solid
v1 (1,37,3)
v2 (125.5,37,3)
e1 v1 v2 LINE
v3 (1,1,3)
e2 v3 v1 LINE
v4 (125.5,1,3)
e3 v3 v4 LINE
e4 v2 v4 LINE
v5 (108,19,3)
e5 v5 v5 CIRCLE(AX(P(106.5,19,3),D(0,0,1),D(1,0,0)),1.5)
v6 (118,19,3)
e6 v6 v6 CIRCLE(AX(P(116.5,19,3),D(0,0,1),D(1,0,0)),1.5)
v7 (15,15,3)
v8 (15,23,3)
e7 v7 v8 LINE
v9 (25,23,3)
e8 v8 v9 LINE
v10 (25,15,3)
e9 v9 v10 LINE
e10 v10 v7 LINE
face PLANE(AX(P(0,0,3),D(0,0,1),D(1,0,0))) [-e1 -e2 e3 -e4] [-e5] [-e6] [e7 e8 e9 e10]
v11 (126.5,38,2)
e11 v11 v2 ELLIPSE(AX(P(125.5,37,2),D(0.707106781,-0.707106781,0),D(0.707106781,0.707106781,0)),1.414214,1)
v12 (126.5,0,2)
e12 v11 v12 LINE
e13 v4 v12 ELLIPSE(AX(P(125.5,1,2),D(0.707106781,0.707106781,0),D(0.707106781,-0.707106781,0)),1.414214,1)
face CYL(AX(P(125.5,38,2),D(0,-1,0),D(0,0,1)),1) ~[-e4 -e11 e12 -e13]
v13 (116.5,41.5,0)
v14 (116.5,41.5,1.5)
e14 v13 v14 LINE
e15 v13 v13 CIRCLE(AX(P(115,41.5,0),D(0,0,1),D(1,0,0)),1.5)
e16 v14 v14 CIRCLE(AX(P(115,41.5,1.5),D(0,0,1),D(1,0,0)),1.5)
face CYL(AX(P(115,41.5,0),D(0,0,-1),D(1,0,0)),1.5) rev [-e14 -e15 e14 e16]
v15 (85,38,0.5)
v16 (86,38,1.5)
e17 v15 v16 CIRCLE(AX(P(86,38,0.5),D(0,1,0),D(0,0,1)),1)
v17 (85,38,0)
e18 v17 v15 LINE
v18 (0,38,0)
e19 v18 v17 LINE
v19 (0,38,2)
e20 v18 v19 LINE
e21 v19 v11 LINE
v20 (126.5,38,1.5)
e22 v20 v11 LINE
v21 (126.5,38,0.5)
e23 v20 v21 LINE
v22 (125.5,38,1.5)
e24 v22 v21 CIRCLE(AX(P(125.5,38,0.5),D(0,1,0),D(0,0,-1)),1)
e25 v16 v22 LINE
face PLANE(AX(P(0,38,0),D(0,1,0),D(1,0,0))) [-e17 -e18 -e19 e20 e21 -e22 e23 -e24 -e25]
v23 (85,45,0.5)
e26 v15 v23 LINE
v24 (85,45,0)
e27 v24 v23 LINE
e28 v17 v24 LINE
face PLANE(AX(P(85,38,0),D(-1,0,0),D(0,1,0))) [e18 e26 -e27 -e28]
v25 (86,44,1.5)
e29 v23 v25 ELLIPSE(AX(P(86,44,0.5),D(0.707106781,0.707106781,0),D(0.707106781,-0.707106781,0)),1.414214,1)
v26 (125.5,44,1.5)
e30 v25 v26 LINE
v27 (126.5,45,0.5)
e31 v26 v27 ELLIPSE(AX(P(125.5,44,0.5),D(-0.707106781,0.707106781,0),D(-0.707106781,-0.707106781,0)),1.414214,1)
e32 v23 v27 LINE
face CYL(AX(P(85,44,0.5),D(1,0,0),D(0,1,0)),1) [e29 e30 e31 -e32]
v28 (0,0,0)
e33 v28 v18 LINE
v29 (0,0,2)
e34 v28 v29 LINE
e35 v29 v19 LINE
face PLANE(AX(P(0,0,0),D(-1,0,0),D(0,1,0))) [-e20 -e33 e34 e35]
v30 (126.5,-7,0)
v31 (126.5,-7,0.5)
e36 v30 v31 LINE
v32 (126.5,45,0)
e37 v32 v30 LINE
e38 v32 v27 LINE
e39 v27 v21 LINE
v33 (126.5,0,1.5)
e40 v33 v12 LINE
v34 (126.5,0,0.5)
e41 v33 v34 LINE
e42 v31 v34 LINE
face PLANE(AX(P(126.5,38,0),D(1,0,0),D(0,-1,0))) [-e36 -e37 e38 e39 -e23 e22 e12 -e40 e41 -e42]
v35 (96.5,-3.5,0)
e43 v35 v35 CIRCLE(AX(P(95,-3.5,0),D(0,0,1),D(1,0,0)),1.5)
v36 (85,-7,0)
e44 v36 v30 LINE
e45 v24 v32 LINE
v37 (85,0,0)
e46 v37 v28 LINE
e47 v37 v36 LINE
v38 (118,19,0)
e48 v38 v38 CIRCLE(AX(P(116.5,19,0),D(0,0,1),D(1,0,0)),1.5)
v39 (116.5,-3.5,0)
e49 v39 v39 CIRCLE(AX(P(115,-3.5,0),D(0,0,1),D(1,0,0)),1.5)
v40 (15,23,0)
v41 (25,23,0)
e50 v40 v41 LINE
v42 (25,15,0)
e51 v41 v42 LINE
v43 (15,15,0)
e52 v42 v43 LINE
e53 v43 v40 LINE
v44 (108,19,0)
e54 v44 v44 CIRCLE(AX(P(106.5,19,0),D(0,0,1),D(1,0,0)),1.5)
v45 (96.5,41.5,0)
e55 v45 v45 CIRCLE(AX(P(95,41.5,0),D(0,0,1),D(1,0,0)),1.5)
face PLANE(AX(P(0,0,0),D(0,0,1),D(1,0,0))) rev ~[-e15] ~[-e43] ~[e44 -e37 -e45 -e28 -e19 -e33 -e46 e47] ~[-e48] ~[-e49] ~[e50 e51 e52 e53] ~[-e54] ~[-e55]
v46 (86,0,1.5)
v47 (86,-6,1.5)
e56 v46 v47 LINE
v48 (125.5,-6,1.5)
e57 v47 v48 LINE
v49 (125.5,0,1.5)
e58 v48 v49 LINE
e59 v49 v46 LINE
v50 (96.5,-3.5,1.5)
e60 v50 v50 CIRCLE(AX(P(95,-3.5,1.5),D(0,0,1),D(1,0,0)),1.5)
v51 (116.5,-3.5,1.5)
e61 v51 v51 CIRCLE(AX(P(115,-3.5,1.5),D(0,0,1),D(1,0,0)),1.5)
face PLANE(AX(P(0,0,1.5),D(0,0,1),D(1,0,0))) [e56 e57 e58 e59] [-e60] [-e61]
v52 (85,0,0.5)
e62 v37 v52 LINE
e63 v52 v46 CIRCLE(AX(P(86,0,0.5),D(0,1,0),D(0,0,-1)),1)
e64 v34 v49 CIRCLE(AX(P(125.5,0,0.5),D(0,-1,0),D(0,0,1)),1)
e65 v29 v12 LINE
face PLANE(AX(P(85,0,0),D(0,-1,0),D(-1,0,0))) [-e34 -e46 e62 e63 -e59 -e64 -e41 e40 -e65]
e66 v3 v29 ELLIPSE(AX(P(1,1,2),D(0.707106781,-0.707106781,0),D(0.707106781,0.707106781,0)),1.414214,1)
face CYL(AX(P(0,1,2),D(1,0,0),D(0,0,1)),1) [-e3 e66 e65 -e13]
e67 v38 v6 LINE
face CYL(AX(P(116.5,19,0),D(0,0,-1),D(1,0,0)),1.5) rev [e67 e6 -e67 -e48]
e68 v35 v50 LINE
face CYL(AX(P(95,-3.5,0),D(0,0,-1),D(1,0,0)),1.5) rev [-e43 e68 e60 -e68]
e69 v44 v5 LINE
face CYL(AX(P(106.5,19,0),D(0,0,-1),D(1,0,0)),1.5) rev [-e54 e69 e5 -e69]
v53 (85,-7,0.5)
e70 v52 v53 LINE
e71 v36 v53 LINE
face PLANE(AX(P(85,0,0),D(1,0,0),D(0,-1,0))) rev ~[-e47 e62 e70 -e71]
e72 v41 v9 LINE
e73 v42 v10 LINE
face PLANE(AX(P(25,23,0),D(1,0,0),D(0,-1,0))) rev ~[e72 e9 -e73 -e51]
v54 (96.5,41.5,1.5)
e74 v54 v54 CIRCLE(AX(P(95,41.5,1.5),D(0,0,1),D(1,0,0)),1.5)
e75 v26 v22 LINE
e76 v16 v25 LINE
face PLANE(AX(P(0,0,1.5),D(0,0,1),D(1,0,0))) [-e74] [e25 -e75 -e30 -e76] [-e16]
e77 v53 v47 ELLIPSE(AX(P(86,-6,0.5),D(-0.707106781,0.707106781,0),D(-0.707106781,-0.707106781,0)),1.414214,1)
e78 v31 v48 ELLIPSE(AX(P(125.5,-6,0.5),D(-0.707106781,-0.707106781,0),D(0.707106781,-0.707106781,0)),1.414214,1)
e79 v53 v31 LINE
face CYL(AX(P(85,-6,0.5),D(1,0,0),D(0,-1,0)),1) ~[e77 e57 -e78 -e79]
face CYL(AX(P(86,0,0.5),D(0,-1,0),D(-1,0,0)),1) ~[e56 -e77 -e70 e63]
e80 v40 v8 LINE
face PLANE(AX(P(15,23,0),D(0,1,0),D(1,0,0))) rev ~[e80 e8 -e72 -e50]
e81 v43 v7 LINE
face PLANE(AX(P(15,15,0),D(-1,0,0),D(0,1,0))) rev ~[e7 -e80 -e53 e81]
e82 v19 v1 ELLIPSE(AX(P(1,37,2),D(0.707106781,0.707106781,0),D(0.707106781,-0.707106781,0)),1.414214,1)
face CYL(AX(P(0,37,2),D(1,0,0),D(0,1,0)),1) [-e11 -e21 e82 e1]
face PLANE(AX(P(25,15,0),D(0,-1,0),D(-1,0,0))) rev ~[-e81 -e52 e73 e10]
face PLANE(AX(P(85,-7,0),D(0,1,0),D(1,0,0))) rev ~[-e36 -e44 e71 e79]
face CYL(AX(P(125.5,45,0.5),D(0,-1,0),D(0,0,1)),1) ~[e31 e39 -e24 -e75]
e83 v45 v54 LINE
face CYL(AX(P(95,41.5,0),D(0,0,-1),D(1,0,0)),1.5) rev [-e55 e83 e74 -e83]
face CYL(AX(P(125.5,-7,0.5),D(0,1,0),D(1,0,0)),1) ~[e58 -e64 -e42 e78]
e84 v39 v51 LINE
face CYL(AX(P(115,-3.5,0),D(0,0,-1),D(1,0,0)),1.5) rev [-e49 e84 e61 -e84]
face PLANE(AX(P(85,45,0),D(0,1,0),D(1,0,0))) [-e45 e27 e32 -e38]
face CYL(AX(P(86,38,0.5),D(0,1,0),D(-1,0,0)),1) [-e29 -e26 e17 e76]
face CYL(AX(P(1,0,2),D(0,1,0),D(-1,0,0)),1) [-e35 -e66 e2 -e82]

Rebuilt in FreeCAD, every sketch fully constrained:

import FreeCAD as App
import Part
import Sketcher

V = App.Vector
Q = App.Units.Quantity


def edges_at(feature, points):
    """Names of the edges that pass closest to the given points."""
    edges = feature.Shape.Edges
    near = lambda p: min(range(len(edges)), key=lambda i: edges[i].distToShape(Part.Vertex(*p))[0])
    return sorted({f"Edge{near(p) + 1}" for p in points})

doc = App.newDocument("Part")
body = doc.addObject("PartDesign::Body", "Body")

# Sketch on XY plane
sketch1 = body.newObject("Sketcher::SketchObject", "Sketch")
sketch1.AttachmentSupport = (doc.getObject("XY_Plane"), [""])
sketch1.MapMode = "FlatFace"
sketch1.addGeometry([
    Part.LineSegment(V(126.5, 38, 0), V(0, 38, 0)),  # 0
    Part.LineSegment(V(0, 38, 0), V(0, 0, 0)),  # 1
    Part.LineSegment(V(0, 0, 0), V(126.5, 0, 0)),  # 2
    Part.LineSegment(V(126.5, 0, 0), V(126.5, 38, 0)),  # 3
    Part.LineSegment(V(15, 15, 0), V(15, 23, 0)),  # 4
    Part.LineSegment(V(15, 23, 0), V(25, 23, 0)),  # 5
    Part.LineSegment(V(25, 23, 0), V(25, 15, 0)),  # 6
    Part.LineSegment(V(25, 15, 0), V(15, 15, 0)),  # 7
    Part.Circle(V(106.5, 19, 0), V(0, 0, 1), 1.5),  # 8
    Part.Circle(V(116.5, 19, 0), V(0, 0, 1), 1.5),  # 9
], False)
sketch1.addConstraint([
    Sketcher.Constraint("Coincident", 0, 2, 1, 1),
    Sketcher.Constraint("Coincident", 1, 2, 2, 1),
    Sketcher.Constraint("Coincident", 2, 2, 3, 1),
    Sketcher.Constraint("Coincident", 3, 2, 0, 1),
    Sketcher.Constraint("Coincident", 4, 2, 5, 1),
    Sketcher.Constraint("Coincident", 5, 2, 6, 1),
    Sketcher.Constraint("Coincident", 6, 2, 7, 1),
    Sketcher.Constraint("Coincident", 7, 2, 4, 1),
    Sketcher.Constraint("Horizontal", 0),
    Sketcher.Constraint("Vertical", 1),
    Sketcher.Constraint("Horizontal", 2),
    Sketcher.Constraint("Vertical", 3),
    Sketcher.Constraint("Vertical", 4),
    Sketcher.Constraint("Horizontal", 5),
    Sketcher.Constraint("Vertical", 6),
    Sketcher.Constraint("Horizontal", 7),
    Sketcher.Constraint("Coincident", 1, 2, -1, 1),
    Sketcher.Constraint("Equal", 8, 9),
    Sketcher.Constraint("Horizontal", 8, 3, 9, 3),
    Sketcher.Constraint("Diameter", 8, Q("3 mm")),
    Sketcher.Constraint("DistanceX", 5, 1, 5, 2, Q("10 mm")),
    Sketcher.Constraint("DistanceY", 1, 2, 1, 1, Q("38 mm")),
    Sketcher.Constraint("DistanceY", 4, 1, 4, 2, Q("8 mm")),
    Sketcher.Constraint("DistanceX", 0, 2, 0, 1, Q("126.5 mm")),
    Sketcher.Constraint("DistanceY", -1, 1, 8, 3, Q("19 mm")),
    Sketcher.Constraint("DistanceX", -1, 1, 4, 2, Q("15 mm")),
    Sketcher.Constraint("DistanceY", -1, 1, 6, 2, Q("15 mm")),
    Sketcher.Constraint("DistanceX", 8, 3, 9, 3, Q("10 mm")),
    Sketcher.Constraint("DistanceX", 9, 3, 2, 2, Q("10 mm")),
])
pad1 = body.newObject("PartDesign::Pad", "Pad")
pad1.Profile = sketch1
pad1.Length = 3

# Sketch on XY plane
sketch2 = body.newObject("Sketcher::SketchObject", "Sketch001")
sketch2.AttachmentSupport = (doc.getObject("XY_Plane"), [""])
sketch2.MapMode = "FlatFace"
sketch2.addGeometry([
    Part.LineSegment(V(85, 45, 0), V(85, 38, 0)),  # 0
    Part.LineSegment(V(85, 38, 0), V(126.5, 38, 0)),  # 1
    Part.LineSegment(V(126.5, 38, 0), V(126.5, 45, 0)),  # 2
    Part.LineSegment(V(126.5, 45, 0), V(85, 45, 0)),  # 3
    Part.Circle(V(95, 41.5, 0), V(0, 0, 1), 1.5),  # 4
    Part.Circle(V(115, 41.5, 0), V(0, 0, 1), 1.5),  # 5
    Part.LineSegment(V(126.5, 0, 0), V(85, 0, 0)),  # 6
    Part.LineSegment(V(85, 0, 0), V(85, -7, 0)),  # 7
    Part.LineSegment(V(85, -7, 0), V(126.5, -7, 0)),  # 8
    Part.LineSegment(V(126.5, -7, 0), V(126.5, 0, 0)),  # 9
    Part.Circle(V(95, -3.5, 0), V(0, 0, 1), 1.5),  # 10
    Part.Circle(V(115, -3.5, 0), V(0, 0, 1), 1.5),  # 11
], False)
sketch2.addConstraint([
    Sketcher.Constraint("Coincident", 0, 2, 1, 1),
    Sketcher.Constraint("Coincident", 1, 2, 2, 1),
    Sketcher.Constraint("Coincident", 2, 2, 3, 1),
    Sketcher.Constraint("Coincident", 3, 2, 0, 1),
    Sketcher.Constraint("Coincident", 6, 2, 7, 1),
    Sketcher.Constraint("Coincident", 7, 2, 8, 1),
    Sketcher.Constraint("Coincident", 8, 2, 9, 1),
    Sketcher.Constraint("Coincident", 9, 2, 6, 1),
    Sketcher.Constraint("Vertical", 0),
    Sketcher.Constraint("Horizontal", 1),
    Sketcher.Constraint("Vertical", 2),
    Sketcher.Constraint("Horizontal", 3),
    Sketcher.Constraint("Horizontal", 6),
    Sketcher.Constraint("Vertical", 7),
    Sketcher.Constraint("Horizontal", 8),
    Sketcher.Constraint("Vertical", 9),
    Sketcher.Constraint("Equal", 4, 5),
    Sketcher.Constraint("Equal", 5, 10),
    Sketcher.Constraint("Equal", 10, 11),
    Sketcher.Constraint("PointOnObject", 6, 2, -1),
    Sketcher.Constraint("Horizontal", 4, 3, 5, 3),
    Sketcher.Constraint("Horizontal", 10, 3, 11, 3),
    Sketcher.Constraint("Vertical", 4, 3, 10, 3),
    Sketcher.Constraint("Vertical", 5, 3, 11, 3),
    Sketcher.Constraint("Vertical", 3, 2, 6, 2),
    Sketcher.Constraint("Vertical", 2, 2, 8, 2),
    Sketcher.Constraint("Equal", 2, 7),
    Sketcher.Constraint("Diameter", 4, Q("3 mm")),
    Sketcher.Constraint("DistanceY", 0, 2, 0, 1, Q("7 mm")),
    Sketcher.Constraint("DistanceX", 1, 1, 1, 2, Q("41.5 mm")),
    Sketcher.Constraint("DistanceY", -1, 1, 0, 2, Q("38 mm")),
    Sketcher.Constraint("DistanceX", 0, 2, 4, 3, Q("10 mm")),
    Sketcher.Constraint("DistanceY", -1, 1, 4, 3, Q("41.5 mm")),
    Sketcher.Constraint("DistanceY", 10, 3, -1, 1, Q("3.5 mm")),
    Sketcher.Constraint("DistanceX", -1, 1, 1, 2, Q("126.5 mm")),
    Sketcher.Constraint("DistanceX", 5, 3, 1, 2, Q("11.5 mm")),
])
pad2 = body.newObject("PartDesign::Pad", "Pad001")
pad2.Profile = sketch2
pad2.Length = 1.5
doc.recompute()

fillet = body.newObject("PartDesign::Fillet", "Fillet")
fillet.Base = (pad2, edges_at(pad2, [
    (63.25, 38, 3),
    (63.25, 0, 3),
    (126.5, 19, 3),
    (85, -3.5, 1.5),
    (105.75, -7, 1.5),
    (126.5, 41.5, 1.5),
    (105.75, 45, 1.5),
    (85, 41.5, 1.5),
    (0, 19, 3),
    (126.5, -3.5, 1.5),
]))
fillet.Radius = 1

doc.recompute()
